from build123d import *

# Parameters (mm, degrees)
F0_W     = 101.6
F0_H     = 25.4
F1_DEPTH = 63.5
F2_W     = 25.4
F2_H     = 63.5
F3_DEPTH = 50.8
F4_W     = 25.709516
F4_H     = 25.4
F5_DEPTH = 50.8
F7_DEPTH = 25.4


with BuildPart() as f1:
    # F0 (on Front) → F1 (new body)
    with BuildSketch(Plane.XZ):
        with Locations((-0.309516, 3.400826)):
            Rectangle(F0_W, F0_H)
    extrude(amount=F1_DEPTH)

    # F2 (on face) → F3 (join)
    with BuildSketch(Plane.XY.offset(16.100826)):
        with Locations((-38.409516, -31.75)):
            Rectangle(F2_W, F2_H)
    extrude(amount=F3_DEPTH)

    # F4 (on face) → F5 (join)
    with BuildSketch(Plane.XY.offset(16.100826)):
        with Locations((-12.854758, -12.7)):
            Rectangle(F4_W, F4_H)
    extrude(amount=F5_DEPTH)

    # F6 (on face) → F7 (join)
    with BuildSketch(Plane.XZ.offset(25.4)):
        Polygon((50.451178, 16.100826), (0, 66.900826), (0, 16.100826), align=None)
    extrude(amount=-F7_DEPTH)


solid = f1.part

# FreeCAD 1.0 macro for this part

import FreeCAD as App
import Part
import Sketcher

V = App.Vector
Q = App.Units.Quantity


def add_polygon(sketch, points):
    """Adds a closed chain of lines whose ends are joined by coincident constraints."""
    first, n = sketch.GeometryCount, len(points)
    for a, b in zip(points, points[1:] + points[:1]):
        sketch.addGeometry(Part.LineSegment(App.Vector(*a, 0), App.Vector(*b, 0)), False)
    for i in range(n):
        sketch.addConstraint(Sketcher.Constraint("Coincident", first + i, 2, first + (i + 1) % n, 1))

doc = App.newDocument("Part")
body = doc.addObject("PartDesign::Body", "Body")

# Sketch on XZ plane
sketch1 = body.newObject("Sketcher::SketchObject", "Sketch")
sketch1.AttachmentSupport = (doc.getObject("XZ_Plane"), [""])
sketch1.MapMode = "FlatFace"
add_polygon(sketch1, [(-51.109516, 16.100826), (-51.109516, -9.299174), (50.490484, -9.299174), (50.490484, 16.100826)])  # lines 0-3
sketch1.addConstraint([
    Sketcher.Constraint("Vertical", 0),
    Sketcher.Constraint("Horizontal", 1),
    Sketcher.Constraint("Vertical", 2),
    Sketcher.Constraint("Horizontal", 3),
    Sketcher.Constraint("DistanceX", 1, 1, 1, 2, Q("4 in")),
    Sketcher.Constraint("DistanceY", 0, 2, 0, 1, Q("1 in")),
    Sketcher.Constraint("DistanceX", 0, 2, -1, 1, Q("51.109516 mm")),
    Sketcher.Constraint("DistanceY", 0, 2, -1, 1, Q("9.299174 mm")),
])
pad1 = body.newObject("PartDesign::Pad", "Pad")
pad1.Profile = sketch1
pad1.Length = Q("2.5 in")

# Sketch on XY plane
sketch2 = body.newObject("Sketcher::SketchObject", "Sketch001")
sketch2.AttachmentSupport = (doc.getObject("XY_Plane"), [""])
sketch2.MapMode = "FlatFace"
sketch2.AttachmentOffset = App.Placement(V(0, 0, 16.100826), App.Rotation())
add_polygon(sketch2, [(-51.109516, 0), (-51.109516, -63.5), (-25.709516, -63.5), (-25.709516, 0)])  # lines 0-3
sketch2.addConstraint([
    Sketcher.Constraint("Vertical", 0),
    Sketcher.Constraint("Horizontal", 1),
    Sketcher.Constraint("Vertical", 2),
    Sketcher.Constraint("Horizontal", 3),
    Sketcher.Constraint("PointOnObject", 2, 2, -1),
    Sketcher.Constraint("DistanceX", 1, 1, 1, 2, Q("1 in")),
    Sketcher.Constraint("DistanceY", 0, 2, 0, 1, Q("2.5 in")),
    Sketcher.Constraint("DistanceX", 0, 2, -1, 1, Q("51.109516 mm")),
])
pad2 = body.newObject("PartDesign::Pad", "Pad001")
pad2.Profile = sketch2
pad2.Length = Q("2 in")

# Sketch on XY plane
sketch3 = body.newObject("Sketcher::SketchObject", "Sketch002")
sketch3.AttachmentSupport = (doc.getObject("XY_Plane"), [""])
sketch3.MapMode = "FlatFace"
sketch3.AttachmentOffset = App.Placement(V(0, 0, 16.100826), App.Rotation())
add_polygon(sketch3, [(-25.709516, 0), (-25.709516, -25.4), (0, -25.4), (0, 0)])  # lines 0-3
sketch3.addConstraint([
    Sketcher.Constraint("Vertical", 0),
    Sketcher.Constraint("Horizontal", 1),
    Sketcher.Constraint("Vertical", 2),
    Sketcher.Constraint("Horizontal", 3),
    Sketcher.Constraint("Coincident", 2, 2, -1, 1),
    Sketcher.Constraint("DistanceY", 0, 2, 0, 1, Q("1 in")),
    Sketcher.Constraint("DistanceX", 1, 1, 1, 2, Q("25.709516 mm")),
])
pad3 = body.newObject("PartDesign::Pad", "Pad002")
pad3.Profile = sketch3
pad3.Length = Q("2 in")

# Sketch on XZ plane
sketch4 = body.newObject("Sketcher::SketchObject", "Sketch003")
sketch4.AttachmentSupport = (doc.getObject("XZ_Plane"), [""])
sketch4.MapMode = "FlatFace"
sketch4.AttachmentOffset = App.Placement(V(0, 0, 1 * 25.4), App.Rotation())
add_polygon(sketch4, [(50.451178, 16.100826), (0, 66.900826), (0, 16.100826)])  # lines 0-2
sketch4.addConstraint([
    Sketcher.Constraint("Vertical", 1),
    Sketcher.Constraint("Horizontal", 2),
    Sketcher.Constraint("PointOnObject", 0, 2, -2),
    Sketcher.Constraint("DistanceY", 1, 2, 1, 1, Q("2 in")),
    Sketcher.Constraint("Distance", 0, Q("71.595819 mm")),
    Sketcher.Constraint("DistanceY", -1, 1, 0, 2, Q("66.900826 mm")),
])
pad4 = body.newObject("PartDesign::Pad", "Pad003")
pad4.Profile = sketch4
pad4.Length = Q("1 in")
pad4.Reversed = True

doc.recompute()
